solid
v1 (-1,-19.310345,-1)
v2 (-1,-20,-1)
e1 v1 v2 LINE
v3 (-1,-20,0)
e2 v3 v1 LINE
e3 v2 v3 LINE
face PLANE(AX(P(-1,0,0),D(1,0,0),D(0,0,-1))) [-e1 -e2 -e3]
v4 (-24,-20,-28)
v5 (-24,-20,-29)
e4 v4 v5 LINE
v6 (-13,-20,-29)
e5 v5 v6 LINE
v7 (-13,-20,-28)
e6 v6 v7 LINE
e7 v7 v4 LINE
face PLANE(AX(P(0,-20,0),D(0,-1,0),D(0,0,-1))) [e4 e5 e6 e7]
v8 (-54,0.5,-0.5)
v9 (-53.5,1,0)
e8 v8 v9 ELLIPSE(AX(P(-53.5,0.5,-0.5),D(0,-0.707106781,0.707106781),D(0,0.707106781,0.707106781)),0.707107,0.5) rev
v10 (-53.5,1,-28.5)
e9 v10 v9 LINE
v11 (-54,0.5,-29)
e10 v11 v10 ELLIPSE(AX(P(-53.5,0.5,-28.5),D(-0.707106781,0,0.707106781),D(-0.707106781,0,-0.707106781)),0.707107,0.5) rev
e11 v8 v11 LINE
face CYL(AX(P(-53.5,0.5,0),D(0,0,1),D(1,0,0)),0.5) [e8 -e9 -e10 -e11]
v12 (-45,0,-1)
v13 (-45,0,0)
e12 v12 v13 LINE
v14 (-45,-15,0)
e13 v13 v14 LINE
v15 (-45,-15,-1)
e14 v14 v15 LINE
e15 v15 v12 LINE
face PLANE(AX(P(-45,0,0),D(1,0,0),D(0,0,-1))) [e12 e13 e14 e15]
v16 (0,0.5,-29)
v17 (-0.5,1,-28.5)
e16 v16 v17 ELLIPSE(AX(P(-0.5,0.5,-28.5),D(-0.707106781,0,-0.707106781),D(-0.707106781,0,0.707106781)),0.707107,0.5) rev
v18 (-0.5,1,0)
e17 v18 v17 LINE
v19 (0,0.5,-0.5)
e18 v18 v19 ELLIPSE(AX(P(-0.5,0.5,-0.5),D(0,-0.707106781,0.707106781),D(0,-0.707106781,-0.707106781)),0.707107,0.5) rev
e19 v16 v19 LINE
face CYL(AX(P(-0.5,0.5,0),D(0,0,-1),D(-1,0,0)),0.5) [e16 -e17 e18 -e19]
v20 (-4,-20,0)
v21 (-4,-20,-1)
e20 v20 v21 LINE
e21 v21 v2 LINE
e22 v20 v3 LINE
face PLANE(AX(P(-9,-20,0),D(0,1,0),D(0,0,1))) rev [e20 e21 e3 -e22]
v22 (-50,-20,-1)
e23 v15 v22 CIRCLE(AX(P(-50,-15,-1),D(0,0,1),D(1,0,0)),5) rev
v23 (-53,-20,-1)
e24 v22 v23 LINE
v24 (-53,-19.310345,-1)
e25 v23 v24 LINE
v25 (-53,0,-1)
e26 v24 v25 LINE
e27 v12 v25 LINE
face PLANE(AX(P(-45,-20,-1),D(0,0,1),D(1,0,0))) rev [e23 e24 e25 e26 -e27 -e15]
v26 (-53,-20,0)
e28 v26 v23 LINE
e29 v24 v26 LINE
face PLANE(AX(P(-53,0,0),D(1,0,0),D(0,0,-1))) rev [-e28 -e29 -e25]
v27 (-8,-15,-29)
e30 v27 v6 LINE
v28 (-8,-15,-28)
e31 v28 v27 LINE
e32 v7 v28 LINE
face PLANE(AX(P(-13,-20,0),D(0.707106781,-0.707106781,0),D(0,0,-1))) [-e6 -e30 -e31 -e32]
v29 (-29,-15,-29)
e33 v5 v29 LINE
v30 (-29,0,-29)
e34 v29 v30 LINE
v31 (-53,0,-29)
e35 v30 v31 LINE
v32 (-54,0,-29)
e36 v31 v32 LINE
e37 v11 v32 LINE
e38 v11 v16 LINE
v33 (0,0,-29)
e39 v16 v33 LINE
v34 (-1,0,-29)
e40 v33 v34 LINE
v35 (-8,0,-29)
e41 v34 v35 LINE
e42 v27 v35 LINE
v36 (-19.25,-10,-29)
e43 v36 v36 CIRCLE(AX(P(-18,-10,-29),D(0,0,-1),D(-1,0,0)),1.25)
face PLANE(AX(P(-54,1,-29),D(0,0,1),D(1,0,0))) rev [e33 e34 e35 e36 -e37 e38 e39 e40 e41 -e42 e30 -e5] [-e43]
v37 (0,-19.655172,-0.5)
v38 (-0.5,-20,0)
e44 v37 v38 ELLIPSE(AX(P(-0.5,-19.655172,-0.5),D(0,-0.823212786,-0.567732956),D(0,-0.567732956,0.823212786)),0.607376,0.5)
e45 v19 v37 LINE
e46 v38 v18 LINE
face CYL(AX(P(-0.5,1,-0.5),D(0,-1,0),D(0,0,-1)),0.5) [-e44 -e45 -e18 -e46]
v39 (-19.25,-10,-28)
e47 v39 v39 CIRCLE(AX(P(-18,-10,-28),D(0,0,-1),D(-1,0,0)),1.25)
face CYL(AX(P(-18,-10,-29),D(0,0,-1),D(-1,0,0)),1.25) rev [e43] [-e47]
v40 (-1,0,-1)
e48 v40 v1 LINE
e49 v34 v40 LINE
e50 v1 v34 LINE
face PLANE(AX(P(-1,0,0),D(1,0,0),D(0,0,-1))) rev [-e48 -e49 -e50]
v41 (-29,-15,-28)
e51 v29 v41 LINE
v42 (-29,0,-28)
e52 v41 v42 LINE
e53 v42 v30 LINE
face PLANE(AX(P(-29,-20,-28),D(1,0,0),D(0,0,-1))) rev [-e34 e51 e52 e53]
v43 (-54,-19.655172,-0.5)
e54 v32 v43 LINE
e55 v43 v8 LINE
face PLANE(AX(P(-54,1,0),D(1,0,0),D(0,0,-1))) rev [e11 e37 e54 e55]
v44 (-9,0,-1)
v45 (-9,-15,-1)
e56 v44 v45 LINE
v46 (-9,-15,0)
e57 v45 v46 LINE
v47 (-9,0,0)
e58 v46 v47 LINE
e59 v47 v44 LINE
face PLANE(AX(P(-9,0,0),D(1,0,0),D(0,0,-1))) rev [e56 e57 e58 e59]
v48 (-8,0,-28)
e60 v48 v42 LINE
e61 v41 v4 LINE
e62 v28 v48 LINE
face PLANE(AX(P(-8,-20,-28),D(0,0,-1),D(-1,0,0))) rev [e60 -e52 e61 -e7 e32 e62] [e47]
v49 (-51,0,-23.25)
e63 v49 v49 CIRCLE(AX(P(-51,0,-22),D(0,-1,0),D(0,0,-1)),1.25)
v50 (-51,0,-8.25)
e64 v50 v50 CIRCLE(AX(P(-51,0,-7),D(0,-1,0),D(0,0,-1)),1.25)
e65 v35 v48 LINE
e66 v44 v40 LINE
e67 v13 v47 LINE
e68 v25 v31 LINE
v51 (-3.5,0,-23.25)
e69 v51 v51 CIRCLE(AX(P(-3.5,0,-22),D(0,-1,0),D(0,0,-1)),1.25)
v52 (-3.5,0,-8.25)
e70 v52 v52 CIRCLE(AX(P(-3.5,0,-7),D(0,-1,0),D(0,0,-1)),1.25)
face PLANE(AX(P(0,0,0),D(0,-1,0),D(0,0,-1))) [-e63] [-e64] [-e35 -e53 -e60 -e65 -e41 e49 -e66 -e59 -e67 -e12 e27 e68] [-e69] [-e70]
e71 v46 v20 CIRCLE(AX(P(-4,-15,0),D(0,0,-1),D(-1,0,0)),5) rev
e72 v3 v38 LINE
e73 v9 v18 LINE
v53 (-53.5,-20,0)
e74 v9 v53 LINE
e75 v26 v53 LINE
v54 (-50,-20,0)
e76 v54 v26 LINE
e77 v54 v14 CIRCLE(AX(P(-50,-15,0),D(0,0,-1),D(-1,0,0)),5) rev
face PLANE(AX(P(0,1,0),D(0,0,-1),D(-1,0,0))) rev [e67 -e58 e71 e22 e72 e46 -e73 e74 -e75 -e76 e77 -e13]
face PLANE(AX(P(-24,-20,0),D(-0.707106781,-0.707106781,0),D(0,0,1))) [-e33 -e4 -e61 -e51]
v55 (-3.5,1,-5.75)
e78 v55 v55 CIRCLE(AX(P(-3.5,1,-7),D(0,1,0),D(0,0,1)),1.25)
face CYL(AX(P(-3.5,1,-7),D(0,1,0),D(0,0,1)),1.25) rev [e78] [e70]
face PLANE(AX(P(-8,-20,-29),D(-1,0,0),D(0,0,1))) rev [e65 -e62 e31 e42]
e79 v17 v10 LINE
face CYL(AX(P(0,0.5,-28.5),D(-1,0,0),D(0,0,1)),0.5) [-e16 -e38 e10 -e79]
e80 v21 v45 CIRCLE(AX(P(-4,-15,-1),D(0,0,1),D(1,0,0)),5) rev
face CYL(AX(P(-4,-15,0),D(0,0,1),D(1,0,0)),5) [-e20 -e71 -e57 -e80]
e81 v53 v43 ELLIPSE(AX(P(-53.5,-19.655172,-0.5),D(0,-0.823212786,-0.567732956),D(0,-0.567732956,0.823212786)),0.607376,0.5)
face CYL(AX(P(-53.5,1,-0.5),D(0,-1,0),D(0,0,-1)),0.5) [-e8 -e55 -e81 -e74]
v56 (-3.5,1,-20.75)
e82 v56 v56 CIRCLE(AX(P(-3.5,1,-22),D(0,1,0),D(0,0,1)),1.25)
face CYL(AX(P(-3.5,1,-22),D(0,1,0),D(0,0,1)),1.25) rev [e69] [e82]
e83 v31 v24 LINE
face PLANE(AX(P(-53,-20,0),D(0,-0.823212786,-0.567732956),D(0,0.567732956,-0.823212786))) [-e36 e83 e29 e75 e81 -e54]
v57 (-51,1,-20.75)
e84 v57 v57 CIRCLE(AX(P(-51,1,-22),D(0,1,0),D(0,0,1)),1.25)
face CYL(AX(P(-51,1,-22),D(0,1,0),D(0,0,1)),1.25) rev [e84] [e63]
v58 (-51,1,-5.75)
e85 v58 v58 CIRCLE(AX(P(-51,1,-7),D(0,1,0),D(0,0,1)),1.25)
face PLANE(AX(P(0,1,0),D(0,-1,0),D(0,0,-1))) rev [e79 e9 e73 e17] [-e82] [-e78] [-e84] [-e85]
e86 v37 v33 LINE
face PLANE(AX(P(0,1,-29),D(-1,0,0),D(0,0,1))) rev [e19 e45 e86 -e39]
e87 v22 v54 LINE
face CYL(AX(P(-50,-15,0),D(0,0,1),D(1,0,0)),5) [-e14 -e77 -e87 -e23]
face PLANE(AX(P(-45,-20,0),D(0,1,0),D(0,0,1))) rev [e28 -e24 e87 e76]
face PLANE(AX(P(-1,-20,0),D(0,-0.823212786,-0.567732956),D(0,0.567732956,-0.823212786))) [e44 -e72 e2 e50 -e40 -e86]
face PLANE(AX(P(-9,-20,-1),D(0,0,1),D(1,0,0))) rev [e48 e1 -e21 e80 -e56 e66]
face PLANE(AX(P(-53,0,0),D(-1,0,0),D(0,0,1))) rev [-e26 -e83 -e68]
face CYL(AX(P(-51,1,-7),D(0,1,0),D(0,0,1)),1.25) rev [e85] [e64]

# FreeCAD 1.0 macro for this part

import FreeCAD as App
import Part
import Sketcher
from FreeCAD import Vector


def edges_at(feature, points):
    """Names of the edges that pass closest to the given points."""
    edges = feature.Shape.Edges
    near = lambda p: min(range(len(edges)), key=lambda i: edges[i].distToShape(Part.Vertex(*p))[0])
    return sorted({f"Edge{near(p) + 1}" for p in points})


def add_polygon(sketch, points):
    """Adds a closed chain of lines whose ends are joined by coincident constraints."""
    first, n = sketch.GeometryCount, len(points)
    for a, b in zip(points, points[1:] + points[:1]):
        sketch.addGeometry(Part.LineSegment(App.Vector(*a, 0), App.Vector(*b, 0)), False)
    for i in range(n):
        sketch.addConstraint(Sketcher.Constraint("Coincident", first + i, 2, first + (i + 1) % n, 1))

doc = App.newDocument("Part")
params = doc.addObject("Spreadsheet::Sheet", "Params")
for row, (alias, value) in enumerate([
    ("sketch1_width", "54 mm"),
    ("sketch1_height", "29 mm"),
    ("pad1_length", "1 mm"),
    ("sketch2_width", "20 mm"),
    ("sketch2_height", "29 mm"),
    ("pad2_length", "1 mm"),
    ("sketch3_width", "20 mm"),
    ("sketch3_height", "29 mm"),
    ("pad3_length", "1 mm"),
    ("sketch4_width", "20 mm"),
    ("sketch4_height", "1 mm"),
    ("pad4_length", "8 mm"),
    ("sketch5_width", "20 mm"),
    ("sketch5_height", "1 mm"),
    ("pad5_length", "8 mm"),
    ("sketch6_width", "21 mm"),
    ("sketch6_height", "1 mm"),
    ("pad6_length", "20 mm"),
    ("sketch7_diameter", "2.5 mm"),
    ("hole_diameter", "2.5 mm"),
    ("chamfer_size", "5 mm"),
    ("fillet_radius", "0.5 mm"),
    ("fillet2_radius", "5 mm"),
    ("sketch8_diameter", "2.5 mm"),
    ("hole2_diameter", "2.5 mm"),
], start=1):
    params.set(f"A{row}", alias)
    params.set(f"B{row}", "=" + value)
    params.setAlias(f"B{row}", alias)

body = doc.addObject("PartDesign::Body", "Body")

# Sketch on XZ plane
sketch1 = doc.addObject("Sketcher::SketchObject", "Sketch")
body.addObject(sketch1)
sketch1.AttachmentSupport = (doc.XZ_Plane, [""])
sketch1.MapMode = "FlatFace"
add_polygon(sketch1, [(-54, -29), (-54, 0), (0, 0), (0, -29)])  # lines 0-3
sketch1.addConstraint([
    Sketcher.Constraint("Vertical", 0),
    Sketcher.Constraint("Horizontal", 1),
    Sketcher.Constraint("Vertical", 2),
    Sketcher.Constraint("Horizontal", 3),
    Sketcher.Constraint("Coincident", 1, 2, -1, 1),
    Sketcher.Constraint("DistanceX", 1, 1, 1, 2, 54.0),
    Sketcher.Constraint("DistanceY", 0, 1, 0, 2, 29.0),
])
sketch1.setExpression("Constraints[9]", "Params.sketch1_width")
sketch1.setExpression("Constraints[10]", "Params.sketch1_height")
pad1 = doc.addObject("PartDesign::Pad", "Pad")
body.addObject(pad1)
pad1.Profile = sketch1
pad1.setExpression("Length", "Params.pad1_length")
pad1.Reversed = True

# Sketch on YZ plane
sketch2 = doc.addObject("Sketcher::SketchObject", "Sketch001")
body.addObject(sketch2)
sketch2.AttachmentSupport = (doc.YZ_Plane, [""])
sketch2.MapMode = "FlatFace"
sketch2.AttachmentOffset = App.Placement(Vector(0, 0, -54), App.Rotation())
add_polygon(sketch2, [(0, 0), (0, -29), (-20, 0)])  # lines 0-2
sketch2.addConstraint([
    Sketcher.Constraint("Vertical", 0),
    Sketcher.Constraint("Horizontal", 2),
    Sketcher.Constraint("Coincident", 2, 2, -1, 1),
    Sketcher.Constraint("DistanceX", 2, 1, 2, 2, 20.0),
    Sketcher.Constraint("DistanceY", 0, 2, 0, 1, 29.0),
])
sketch2.setExpression("Constraints[6]", "Params.sketch2_width")
sketch2.setExpression("Constraints[7]", "Params.sketch2_height")
pad2 = doc.addObject("PartDesign::Pad", "Pad001")
body.addObject(pad2)
pad2.Profile = sketch2
pad2.setExpression("Length", "Params.pad2_length")

# Sketch on YZ plane
sketch3 = doc.addObject("Sketcher::SketchObject", "Sketch002")
body.addObject(sketch3)
sketch3.AttachmentSupport = (doc.YZ_Plane, [""])
sketch3.MapMode = "FlatFace"
add_polygon(sketch3, [(0, 0), (-20, 0), (0, -29)])  # lines 0-2
sketch3.addConstraint([
    Sketcher.Constraint("Horizontal", 0),
    Sketcher.Constraint("Vertical", 2),
    Sketcher.Constraint("Coincident", 2, 2, -1, 1),
    Sketcher.Constraint("DistanceX", 0, 2, 0, 1, 20.0),
    Sketcher.Constraint("DistanceY", 2, 1, 2, 2, 29.0),
])
sketch3.setExpression("Constraints[6]", "Params.sketch3_width")
sketch3.setExpression("Constraints[7]", "Params.sketch3_height")
pad3 = doc.addObject("PartDesign::Pad", "Pad002")
body.addObject(pad3)
pad3.Profile = sketch3
pad3.setExpression("Length", "Params.pad3_length")
pad3.Reversed = True

# Sketch on YZ plane
sketch4 = doc.addObject("Sketcher::SketchObject", "Sketch003")
body.addObject(sketch4)
sketch4.AttachmentSupport = (doc.YZ_Plane, [""])
sketch4.MapMode = "FlatFace"
sketch4.AttachmentOffset = App.Placement(Vector(0, 0, -1), App.Rotation())
add_polygon(sketch4, [(0, -1), (-20, -1), (-20, 0), (0, 0)])  # lines 0-3
sketch4.addConstraint([
    Sketcher.Constraint("Horizontal", 0),
    Sketcher.Constraint("Vertical", 1),
    Sketcher.Constraint("Horizontal", 2),
    Sketcher.Constraint("Vertical", 3),
    Sketcher.Constraint("Coincident", 2, 2, -1, 1),
    Sketcher.Constraint("DistanceX", 0, 2, 0, 1, 20.0),
    Sketcher.Constraint("DistanceY", 1, 1, 1, 2, 1.0),
])
sketch4.setExpression("Constraints[9]", "Params.sketch4_width")
sketch4.setExpression("Constraints[10]", "Params.sketch4_height")
pad4 = doc.addObject("PartDesign::Pad", "Pad003")
body.addObject(pad4)
pad4.Profile = sketch4
pad4.setExpression("Length", "Params.pad4_length")
pad4.Reversed = True

# Sketch on YZ plane
sketch5 = doc.addObject("Sketcher::SketchObject", "Sketch004")
body.addObject(sketch5)
sketch5.AttachmentSupport = (doc.YZ_Plane, [""])
sketch5.MapMode = "FlatFace"
sketch5.AttachmentOffset = App.Placement(Vector(0, 0, -53), App.Rotation())
add_polygon(sketch5, [(0, 0), (-20, 0), (-20, -1), (0, -1)])  # lines 0-3
sketch5.addConstraint([
    Sketcher.Constraint("Horizontal", 0),
    Sketcher.Constraint("Vertical", 1),
    Sketcher.Constraint("Horizontal", 2),
    Sketcher.Constraint("Vertical", 3),
    Sketcher.Constraint("Coincident", 3, 2, -1, 1),
    Sketcher.Constraint("DistanceX", 0, 2, 0, 1, 20.0),
    Sketcher.Constraint("DistanceY", 1, 2, 1, 1, 1.0),
])
sketch5.setExpression("Constraints[9]", "Params.sketch5_width")
sketch5.setExpression("Constraints[10]", "Params.sketch5_height")
pad5 = doc.addObject("PartDesign::Pad", "Pad004")
body.addObject(pad5)
pad5.Profile = sketch5
pad5.setExpression("Length", "Params.pad5_length")

# Sketch on XZ plane
sketch6 = doc.addObject("Sketcher::SketchObject", "Sketch005")
body.addObject(sketch6)
sketch6.AttachmentSupport = (doc.XZ_Plane, [""])
sketch6.MapMode = "FlatFace"
add_polygon(sketch6, [(-29, -28), (-29, -29), (-8, -29), (-8, -28)])  # lines 0-3
sketch6.addConstraint([
    Sketcher.Constraint("Vertical", 0),
    Sketcher.Constraint("Horizontal", 1),
    Sketcher.Constraint("Vertical", 2),
    Sketcher.Constraint("Horizontal", 3),
    Sketcher.Constraint("DistanceX", 1, 1, 1, 2, 21.0),
    Sketcher.Constraint("DistanceY", 0, 2, 0, 1, 1.0),
    Sketcher.Constraint("DistanceX", 0, 2, -1, 1, 29.0),
    Sketcher.Constraint("DistanceY", 0, 2, -1, 1, 29.0),
])
sketch6.setExpression("Constraints[8]", "Params.sketch6_width")
sketch6.setExpression("Constraints[9]", "Params.sketch6_height")
pad6 = doc.addObject("PartDesign::Pad", "Pad005")
body.addObject(pad6)
pad6.Profile = sketch6
pad6.setExpression("Length", "Params.pad6_length")

# Sketch on XY plane
sketch7 = doc.addObject("Sketcher::SketchObject", "Sketch006")
body.addObject(sketch7)
sketch7.AttachmentSupport = (doc.XY_Plane, [""])
sketch7.MapMode = "FlatFace"
sketch7.AttachmentOffset = App.Placement(Vector(0, 0, -29), App.Rotation())
sketch7.addGeometry(Part.Circle(Vector(-18, -10, 0), Vector(0, 0, 1), 1.2), False)
sketch7.addConstraint([
    Sketcher.Constraint("Diameter", 0, 2.5),
    Sketcher.Constraint("DistanceX", 0, 3, -1, 1, 18.0),
    Sketcher.Constraint("DistanceY", 0, 3, -1, 1, 10.0),
])
sketch7.setExpression("Constraints[0]", "Params.sketch7_diameter")
doc.recompute()
hole = doc.addObject("PartDesign::Hole", "Hole")
body.addObject(hole)
hole.Profile = sketch7
hole.ThreadType = "None"
hole.setExpression("Diameter", "Params.hole_diameter")
hole.DepthType = "ThroughAll"
hole.Reversed = True
doc.recompute()

chamfer = doc.addObject("PartDesign::Chamfer", "Chamfer")
body.addObject(chamfer)
chamfer.Base = (hole, edges_at(hole, [(-8, -20, -28.5), (-29, -20, -28.5)]))
chamfer.setExpression("Size", "Params.chamfer_size")
doc.recompute()

fillet = doc.addObject("PartDesign::Fillet", "Fillet")
body.addObject(fillet)
fillet.Base = (chamfer, edges_at(chamfer, [
    (-54, 1, -14.5),
    (0, 1, -14.5),
    (-27, 1, -29),
    (0, -9.5, 0),
    (-54, -9.5, 0),
]))
fillet.setExpression("Radius", "Params.fillet_radius")
doc.recompute()

fillet2 = doc.addObject("PartDesign::Fillet", "Fillet001")
body.addObject(fillet2)
fillet2.Base = (fillet, edges_at(fillet, [(-9, -20, -0.5), (-45, -20, -0.5)]))
fillet2.setExpression("Radius", "Params.fillet2_radius")

# Sketch on XZ plane
sketch8 = doc.addObject("Sketcher::SketchObject", "Sketch007")
body.addObject(sketch8)
sketch8.AttachmentSupport = (doc.XZ_Plane, [""])
sketch8.MapMode = "FlatFace"
sketch8.AttachmentOffset = App.Placement(Vector(0, 0, -1), App.Rotation())
sketch8.addGeometry([
    Part.Circle(Vector(-51, -22, 0), Vector(0, 0, 1), 1.2),
    Part.Circle(Vector(-51, -7, 0), Vector(0, 0, 1), 1.2),
    Part.Circle(Vector(-3.5, -7, 0), Vector(0, 0, 1), 1.2),
    Part.Circle(Vector(-3.5, -22, 0), Vector(0, 0, 1), 1.2),
], False)
sketch8.addConstraint([
    Sketcher.Constraint("Equal", 0, 1),
    Sketcher.Constraint("Equal", 1, 2),
    Sketcher.Constraint("Equal", 2, 3),
    Sketcher.Constraint("Horizontal", 1, 3, 2, 3),
    Sketcher.Constraint("Horizontal", 0, 3, 3, 3),
    Sketcher.Constraint("Vertical", 0, 3, 1, 3),
    Sketcher.Constraint("Vertical", 2, 3, 3, 3),
    Sketcher.Constraint("Diameter", 0, 2.5),
    Sketcher.Constraint("DistanceX", 0, 3, -1, 1, 51.0),
    Sketcher.Constraint("DistanceY", 0, 3, -1, 1, 22.0),
    Sketcher.Constraint("DistanceY", 1, 3, -1, 1, 7.0),
    Sketcher.Constraint("DistanceX", 2, 3, -1, 1, 3.5),
])
sketch8.setExpression("Constraints[7]", "Params.sketch8_diameter")
doc.recompute()
hole2 = doc.addObject("PartDesign::Hole", "Hole001")
body.addObject(hole2)
hole2.Profile = sketch8
hole2.ThreadType = "None"
hole2.setExpression("Diameter", "Params.hole2_diameter")
hole2.DepthType = "ThroughAll"
hole2.Reversed = True

doc.recompute()
